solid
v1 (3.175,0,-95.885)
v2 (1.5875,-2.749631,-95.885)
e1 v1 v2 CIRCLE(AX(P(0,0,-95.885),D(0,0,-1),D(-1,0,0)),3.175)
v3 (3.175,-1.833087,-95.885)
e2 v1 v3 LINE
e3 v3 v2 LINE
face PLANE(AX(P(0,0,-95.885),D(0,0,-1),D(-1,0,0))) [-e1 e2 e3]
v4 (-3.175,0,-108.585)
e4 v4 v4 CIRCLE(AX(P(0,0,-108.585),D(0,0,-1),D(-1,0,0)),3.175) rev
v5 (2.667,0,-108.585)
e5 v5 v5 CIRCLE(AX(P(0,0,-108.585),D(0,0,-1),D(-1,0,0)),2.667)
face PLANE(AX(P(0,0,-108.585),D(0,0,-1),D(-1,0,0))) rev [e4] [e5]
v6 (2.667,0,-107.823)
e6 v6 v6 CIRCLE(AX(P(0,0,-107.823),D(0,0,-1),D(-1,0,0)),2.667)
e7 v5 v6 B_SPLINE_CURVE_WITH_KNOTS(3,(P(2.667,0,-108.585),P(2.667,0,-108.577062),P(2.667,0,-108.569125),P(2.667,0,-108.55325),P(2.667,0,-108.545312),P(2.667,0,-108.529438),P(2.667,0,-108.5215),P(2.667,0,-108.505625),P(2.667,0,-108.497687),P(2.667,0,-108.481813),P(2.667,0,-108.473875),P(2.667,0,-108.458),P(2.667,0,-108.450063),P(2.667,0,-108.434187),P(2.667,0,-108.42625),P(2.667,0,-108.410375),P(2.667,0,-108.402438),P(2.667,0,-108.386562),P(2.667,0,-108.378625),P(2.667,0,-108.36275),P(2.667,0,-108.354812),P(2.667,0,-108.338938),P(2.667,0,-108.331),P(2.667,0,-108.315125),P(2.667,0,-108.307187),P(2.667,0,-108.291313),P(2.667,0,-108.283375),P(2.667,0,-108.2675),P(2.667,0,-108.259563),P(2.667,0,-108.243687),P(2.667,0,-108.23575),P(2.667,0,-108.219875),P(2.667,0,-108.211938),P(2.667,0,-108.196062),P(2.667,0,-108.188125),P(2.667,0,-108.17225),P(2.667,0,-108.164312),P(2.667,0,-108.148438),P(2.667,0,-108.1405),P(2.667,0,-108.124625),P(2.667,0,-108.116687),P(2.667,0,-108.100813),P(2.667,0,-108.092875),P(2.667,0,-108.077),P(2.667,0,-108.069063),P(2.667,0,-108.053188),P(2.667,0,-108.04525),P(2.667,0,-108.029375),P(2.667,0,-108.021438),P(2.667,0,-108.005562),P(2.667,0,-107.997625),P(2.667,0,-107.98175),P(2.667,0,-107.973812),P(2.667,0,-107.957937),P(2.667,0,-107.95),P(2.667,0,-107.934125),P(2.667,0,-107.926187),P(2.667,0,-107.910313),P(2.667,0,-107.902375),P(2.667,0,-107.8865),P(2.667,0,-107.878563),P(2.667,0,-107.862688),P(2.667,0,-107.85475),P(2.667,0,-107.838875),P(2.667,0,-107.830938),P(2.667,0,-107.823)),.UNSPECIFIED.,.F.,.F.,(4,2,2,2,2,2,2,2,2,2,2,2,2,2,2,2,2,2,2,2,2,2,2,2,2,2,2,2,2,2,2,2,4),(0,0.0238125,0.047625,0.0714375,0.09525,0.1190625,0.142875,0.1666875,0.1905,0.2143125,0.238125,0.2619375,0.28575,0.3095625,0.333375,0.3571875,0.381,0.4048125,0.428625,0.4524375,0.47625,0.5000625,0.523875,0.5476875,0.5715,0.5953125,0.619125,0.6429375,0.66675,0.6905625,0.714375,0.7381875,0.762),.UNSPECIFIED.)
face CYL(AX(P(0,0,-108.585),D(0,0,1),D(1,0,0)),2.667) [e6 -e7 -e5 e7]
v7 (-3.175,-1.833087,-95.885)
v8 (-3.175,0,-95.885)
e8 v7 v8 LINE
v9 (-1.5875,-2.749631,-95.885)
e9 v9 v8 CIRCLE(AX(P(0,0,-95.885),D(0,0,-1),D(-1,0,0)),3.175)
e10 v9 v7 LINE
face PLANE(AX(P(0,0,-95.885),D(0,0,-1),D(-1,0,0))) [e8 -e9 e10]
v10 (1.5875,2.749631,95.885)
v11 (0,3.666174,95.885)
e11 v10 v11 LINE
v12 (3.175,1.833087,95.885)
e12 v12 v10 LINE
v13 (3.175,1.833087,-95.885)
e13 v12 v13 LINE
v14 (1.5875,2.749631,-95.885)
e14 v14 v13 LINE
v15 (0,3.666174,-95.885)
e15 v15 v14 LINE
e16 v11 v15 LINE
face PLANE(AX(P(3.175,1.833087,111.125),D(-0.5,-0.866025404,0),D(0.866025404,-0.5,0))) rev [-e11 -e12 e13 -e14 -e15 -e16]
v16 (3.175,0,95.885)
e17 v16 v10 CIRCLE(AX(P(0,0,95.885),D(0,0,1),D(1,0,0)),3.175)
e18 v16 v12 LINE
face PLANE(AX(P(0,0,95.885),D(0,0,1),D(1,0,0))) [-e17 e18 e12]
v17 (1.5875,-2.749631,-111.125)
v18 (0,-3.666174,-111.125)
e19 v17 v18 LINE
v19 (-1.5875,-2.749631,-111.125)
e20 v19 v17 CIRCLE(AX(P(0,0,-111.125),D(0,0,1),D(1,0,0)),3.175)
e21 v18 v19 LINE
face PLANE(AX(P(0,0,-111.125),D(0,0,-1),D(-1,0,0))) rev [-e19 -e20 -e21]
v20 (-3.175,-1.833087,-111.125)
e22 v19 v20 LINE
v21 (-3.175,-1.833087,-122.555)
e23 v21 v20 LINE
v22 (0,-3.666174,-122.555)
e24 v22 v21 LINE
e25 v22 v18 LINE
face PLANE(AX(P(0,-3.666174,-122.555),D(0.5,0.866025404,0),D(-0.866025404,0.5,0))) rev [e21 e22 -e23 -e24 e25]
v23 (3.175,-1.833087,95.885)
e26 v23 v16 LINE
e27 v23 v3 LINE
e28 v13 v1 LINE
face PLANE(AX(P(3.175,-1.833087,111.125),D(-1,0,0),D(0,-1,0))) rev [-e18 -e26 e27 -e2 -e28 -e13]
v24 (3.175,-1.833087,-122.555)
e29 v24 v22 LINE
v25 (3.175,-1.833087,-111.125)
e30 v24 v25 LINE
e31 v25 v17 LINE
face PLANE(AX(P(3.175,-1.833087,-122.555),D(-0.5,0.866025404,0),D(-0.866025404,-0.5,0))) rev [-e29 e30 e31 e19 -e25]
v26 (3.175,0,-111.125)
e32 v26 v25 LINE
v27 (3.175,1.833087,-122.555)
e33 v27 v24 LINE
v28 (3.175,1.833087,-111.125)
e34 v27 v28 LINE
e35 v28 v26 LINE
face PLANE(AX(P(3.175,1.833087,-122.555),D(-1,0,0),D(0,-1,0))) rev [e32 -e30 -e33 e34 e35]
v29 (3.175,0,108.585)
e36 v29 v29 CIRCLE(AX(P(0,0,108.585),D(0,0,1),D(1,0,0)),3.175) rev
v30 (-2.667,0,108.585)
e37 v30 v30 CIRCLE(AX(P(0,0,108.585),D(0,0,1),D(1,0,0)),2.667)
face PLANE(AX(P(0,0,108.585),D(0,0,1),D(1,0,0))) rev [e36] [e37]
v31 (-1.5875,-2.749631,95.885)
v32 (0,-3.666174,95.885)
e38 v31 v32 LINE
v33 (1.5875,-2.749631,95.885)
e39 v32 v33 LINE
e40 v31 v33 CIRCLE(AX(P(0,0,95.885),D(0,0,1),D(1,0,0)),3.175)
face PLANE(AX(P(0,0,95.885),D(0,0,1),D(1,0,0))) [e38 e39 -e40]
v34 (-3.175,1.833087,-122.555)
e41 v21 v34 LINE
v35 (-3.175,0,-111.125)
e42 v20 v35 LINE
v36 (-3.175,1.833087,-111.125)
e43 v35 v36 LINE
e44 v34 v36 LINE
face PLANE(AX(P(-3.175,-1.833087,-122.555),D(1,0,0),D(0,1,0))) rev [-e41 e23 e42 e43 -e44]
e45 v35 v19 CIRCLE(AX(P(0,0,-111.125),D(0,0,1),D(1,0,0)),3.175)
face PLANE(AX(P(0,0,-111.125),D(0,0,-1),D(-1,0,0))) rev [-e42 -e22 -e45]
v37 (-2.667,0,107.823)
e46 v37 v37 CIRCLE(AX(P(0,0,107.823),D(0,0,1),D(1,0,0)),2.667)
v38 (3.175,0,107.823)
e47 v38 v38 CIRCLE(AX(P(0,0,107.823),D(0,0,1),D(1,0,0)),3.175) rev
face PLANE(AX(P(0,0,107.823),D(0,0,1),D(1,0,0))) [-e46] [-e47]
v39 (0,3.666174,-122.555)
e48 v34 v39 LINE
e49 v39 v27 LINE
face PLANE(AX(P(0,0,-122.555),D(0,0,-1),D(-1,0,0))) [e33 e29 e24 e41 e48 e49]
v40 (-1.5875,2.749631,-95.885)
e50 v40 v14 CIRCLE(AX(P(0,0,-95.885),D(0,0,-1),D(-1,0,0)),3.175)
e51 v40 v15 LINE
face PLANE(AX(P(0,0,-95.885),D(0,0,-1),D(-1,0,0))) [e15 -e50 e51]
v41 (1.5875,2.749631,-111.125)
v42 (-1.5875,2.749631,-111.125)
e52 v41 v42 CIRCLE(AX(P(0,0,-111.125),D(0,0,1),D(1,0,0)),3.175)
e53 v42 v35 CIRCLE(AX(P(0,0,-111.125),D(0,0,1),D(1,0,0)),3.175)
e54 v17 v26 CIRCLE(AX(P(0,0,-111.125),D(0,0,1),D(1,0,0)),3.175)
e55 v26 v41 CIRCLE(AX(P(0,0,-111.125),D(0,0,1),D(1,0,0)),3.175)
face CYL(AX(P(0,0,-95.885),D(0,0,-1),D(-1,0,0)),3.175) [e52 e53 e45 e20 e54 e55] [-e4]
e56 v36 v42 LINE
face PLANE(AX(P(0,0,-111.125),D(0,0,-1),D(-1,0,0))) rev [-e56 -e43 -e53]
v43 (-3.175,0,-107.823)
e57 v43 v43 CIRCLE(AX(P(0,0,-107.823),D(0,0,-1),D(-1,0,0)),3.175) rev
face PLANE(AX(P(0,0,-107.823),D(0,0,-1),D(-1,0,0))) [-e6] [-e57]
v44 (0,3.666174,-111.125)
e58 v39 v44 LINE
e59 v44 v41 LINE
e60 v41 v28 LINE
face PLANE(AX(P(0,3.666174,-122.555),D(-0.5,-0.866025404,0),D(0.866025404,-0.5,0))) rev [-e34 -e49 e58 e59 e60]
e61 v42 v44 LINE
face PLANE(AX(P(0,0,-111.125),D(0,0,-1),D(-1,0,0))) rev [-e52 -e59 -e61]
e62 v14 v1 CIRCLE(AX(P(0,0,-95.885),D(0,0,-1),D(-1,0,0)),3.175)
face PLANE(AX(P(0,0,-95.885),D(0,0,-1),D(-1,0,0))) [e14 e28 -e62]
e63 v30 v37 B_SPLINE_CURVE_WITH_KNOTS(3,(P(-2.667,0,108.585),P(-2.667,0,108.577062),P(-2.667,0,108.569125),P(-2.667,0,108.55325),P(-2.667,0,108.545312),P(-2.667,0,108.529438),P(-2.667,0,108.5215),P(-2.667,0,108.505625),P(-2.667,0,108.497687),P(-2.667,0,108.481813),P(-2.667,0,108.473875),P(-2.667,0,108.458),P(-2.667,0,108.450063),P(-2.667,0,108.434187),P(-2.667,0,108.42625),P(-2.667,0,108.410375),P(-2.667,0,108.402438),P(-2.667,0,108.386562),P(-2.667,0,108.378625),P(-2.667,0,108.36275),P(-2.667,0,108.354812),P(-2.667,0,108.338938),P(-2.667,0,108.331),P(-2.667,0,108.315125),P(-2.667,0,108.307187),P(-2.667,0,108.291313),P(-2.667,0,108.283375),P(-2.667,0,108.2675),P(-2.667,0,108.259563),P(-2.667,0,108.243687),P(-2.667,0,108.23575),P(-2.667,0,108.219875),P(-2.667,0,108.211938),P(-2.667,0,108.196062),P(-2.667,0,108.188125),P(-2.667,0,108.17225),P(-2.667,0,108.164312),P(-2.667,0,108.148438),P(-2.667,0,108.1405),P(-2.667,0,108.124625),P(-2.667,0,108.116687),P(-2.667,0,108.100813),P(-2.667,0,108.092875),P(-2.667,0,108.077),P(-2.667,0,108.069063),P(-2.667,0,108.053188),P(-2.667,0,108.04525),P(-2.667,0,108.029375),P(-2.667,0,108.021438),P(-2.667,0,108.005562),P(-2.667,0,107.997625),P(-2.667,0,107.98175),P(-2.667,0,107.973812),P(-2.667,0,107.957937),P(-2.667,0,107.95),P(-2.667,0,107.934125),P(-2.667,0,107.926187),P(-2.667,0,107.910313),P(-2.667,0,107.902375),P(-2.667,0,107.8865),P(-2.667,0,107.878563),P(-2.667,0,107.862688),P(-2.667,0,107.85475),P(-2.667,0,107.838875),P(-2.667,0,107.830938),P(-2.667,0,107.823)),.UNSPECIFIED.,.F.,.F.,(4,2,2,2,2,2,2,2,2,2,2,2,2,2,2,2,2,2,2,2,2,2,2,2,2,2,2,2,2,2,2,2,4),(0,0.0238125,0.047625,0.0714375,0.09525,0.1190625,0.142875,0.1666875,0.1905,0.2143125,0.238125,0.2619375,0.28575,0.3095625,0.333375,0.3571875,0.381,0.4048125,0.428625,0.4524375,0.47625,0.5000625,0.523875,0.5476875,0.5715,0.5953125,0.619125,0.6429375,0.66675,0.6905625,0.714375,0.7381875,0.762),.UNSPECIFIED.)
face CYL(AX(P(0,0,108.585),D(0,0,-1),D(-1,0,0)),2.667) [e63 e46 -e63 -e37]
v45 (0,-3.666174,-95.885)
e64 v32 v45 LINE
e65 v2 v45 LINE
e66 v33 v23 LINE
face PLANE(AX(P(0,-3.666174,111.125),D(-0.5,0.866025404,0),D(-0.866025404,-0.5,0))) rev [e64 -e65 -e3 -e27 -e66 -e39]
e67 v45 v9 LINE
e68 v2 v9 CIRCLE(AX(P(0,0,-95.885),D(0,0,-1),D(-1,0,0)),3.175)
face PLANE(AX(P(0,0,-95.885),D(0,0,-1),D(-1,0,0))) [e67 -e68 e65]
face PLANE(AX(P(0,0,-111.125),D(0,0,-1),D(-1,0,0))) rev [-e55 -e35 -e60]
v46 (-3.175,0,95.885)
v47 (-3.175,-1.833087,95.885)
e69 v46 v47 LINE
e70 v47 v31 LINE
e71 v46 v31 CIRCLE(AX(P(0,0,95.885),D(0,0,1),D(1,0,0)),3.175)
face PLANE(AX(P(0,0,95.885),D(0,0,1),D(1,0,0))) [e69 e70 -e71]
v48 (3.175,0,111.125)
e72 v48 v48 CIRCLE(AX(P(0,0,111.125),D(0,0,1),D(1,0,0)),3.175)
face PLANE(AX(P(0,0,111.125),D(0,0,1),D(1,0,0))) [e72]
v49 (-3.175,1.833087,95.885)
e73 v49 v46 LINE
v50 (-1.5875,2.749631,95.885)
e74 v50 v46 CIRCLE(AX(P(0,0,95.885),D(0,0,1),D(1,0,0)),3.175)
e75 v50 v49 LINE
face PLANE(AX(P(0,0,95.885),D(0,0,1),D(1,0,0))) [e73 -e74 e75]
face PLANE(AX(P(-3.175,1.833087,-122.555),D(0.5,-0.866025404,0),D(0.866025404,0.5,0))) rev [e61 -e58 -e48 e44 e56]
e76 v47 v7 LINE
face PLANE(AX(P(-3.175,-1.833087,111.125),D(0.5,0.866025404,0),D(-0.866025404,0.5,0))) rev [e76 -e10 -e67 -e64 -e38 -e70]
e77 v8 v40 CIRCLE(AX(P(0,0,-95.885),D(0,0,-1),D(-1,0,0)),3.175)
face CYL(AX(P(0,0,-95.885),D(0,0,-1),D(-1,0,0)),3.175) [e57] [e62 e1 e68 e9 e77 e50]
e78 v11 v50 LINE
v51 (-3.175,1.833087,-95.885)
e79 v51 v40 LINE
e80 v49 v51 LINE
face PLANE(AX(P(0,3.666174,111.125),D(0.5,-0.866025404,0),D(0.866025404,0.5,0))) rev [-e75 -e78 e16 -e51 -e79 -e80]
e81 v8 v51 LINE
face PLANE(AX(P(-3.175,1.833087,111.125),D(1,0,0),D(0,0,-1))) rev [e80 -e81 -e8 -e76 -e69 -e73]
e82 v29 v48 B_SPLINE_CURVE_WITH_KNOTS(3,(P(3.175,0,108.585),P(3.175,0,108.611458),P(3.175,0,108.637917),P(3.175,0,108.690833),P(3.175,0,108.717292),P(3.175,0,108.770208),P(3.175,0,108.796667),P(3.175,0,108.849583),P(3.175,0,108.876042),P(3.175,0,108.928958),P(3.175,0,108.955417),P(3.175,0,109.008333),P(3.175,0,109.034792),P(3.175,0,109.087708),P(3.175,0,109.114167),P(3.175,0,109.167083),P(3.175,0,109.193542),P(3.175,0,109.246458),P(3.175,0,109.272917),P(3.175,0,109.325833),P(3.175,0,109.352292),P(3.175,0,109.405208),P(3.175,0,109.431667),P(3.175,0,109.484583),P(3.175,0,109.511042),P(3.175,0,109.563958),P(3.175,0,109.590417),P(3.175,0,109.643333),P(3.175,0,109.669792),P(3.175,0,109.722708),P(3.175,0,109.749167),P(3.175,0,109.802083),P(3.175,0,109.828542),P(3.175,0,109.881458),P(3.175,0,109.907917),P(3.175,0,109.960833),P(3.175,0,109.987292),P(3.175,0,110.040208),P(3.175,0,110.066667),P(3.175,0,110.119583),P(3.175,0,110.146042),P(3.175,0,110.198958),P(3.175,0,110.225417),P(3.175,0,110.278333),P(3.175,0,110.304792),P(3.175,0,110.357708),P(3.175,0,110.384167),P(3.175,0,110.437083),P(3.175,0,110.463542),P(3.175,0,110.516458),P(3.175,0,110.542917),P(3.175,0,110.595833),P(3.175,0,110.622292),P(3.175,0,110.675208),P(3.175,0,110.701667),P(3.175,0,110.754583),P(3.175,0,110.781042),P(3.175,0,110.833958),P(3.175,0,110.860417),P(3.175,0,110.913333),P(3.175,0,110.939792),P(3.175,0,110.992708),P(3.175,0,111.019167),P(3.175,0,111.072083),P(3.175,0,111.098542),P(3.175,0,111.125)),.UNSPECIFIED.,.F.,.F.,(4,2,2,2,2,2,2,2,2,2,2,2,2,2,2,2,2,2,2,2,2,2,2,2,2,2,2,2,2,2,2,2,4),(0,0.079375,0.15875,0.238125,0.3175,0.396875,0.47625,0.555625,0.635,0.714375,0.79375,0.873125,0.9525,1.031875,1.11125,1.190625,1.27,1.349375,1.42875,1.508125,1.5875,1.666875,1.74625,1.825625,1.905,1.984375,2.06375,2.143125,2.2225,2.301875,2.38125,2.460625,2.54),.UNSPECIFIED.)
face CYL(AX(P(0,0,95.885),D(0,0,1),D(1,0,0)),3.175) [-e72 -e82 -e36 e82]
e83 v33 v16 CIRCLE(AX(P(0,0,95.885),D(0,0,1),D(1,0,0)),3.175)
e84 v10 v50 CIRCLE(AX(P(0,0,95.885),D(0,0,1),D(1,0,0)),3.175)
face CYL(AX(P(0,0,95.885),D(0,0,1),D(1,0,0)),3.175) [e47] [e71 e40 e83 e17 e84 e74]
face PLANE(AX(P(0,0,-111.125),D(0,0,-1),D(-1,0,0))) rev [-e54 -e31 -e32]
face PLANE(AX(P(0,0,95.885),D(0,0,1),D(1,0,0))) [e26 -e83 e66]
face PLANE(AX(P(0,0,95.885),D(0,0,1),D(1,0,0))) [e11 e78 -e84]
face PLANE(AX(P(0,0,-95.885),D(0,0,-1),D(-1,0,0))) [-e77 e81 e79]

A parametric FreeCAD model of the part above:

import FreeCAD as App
import Part
import Sketcher
Q = App.Units.Quantity


def add_polygon(sketch, points):
    """Adds a closed chain of lines whose ends are joined by coincident constraints."""
    first, n = sketch.GeometryCount, len(points)
    for a, b in zip(points, points[1:] + points[:1]):
        sketch.addGeometry(Part.LineSegment(App.Vector(*a, 0), App.Vector(*b, 0)), False)
    for i in range(n):
        sketch.addConstraint(Sketcher.Constraint("Coincident", first + i, 2, first + (i + 1) % n, 1))

doc = App.newDocument("Part")
body = doc.addObject("PartDesign::Body", "Body")

# Sketch on XY plane
sketch1 = body.newObject("Sketcher::SketchObject", "Sketch")
sketch1.AttachmentSupport = (doc.getObject("XY_Plane"), [""])
sketch1.MapMode = "FlatFace"
add_polygon(sketch1, [(0, 3.666174), (-3.175, 1.833087), (-3.175, -1.833087), (0, -3.666174), (3.175, -1.833087), (3.175, 1.833087)])  # lines 0-5
sketch1.addConstraint([
    Sketcher.Constraint("Vertical", 1),
    Sketcher.Constraint("Vertical", 4),
    Sketcher.Constraint("Symmetric", 0, 2, 3, 2, -1, 1),
    Sketcher.Constraint("Symmetric", 2, 2, 5, 2, -1, 1),
    Sketcher.Constraint("PointOnObject", 2, 2, -2),
    Sketcher.Constraint("Parallel", 2, 5),
    Sketcher.Constraint("Horizontal", 1, 2, 3, 2),
    Sketcher.Constraint("Angle", 0, Q("-150 deg")),
    Sketcher.Constraint("DistanceX", 1, 2, 3, 2, Q("0.25 in")),
    Sketcher.Constraint("DistanceY", 1, 2, 1, 1, 3.666174),
])
pad1 = body.newObject("PartDesign::Pad", "Pad")
pad1.Profile = sketch1
pad1.Type = "TwoLengths"
pad1.Length = Q("4.375 in")
pad1.Length2 = Q("4.375 in")

# Sketch on XY plane
sketch2 = body.newObject("Sketcher::SketchObject", "Sketch001")
sketch2.AttachmentSupport = (doc.getObject("XY_Plane"), [""])
sketch2.MapMode = "FlatFace"
sketch2.AttachmentOffset = App.Placement(App.Vector(0, 0, 4.375 * 25.4), App.Rotation())
add_polygon(sketch2, [(-26.421, 26.912), (-26.421, -26.912), (26.421, -26.912), (26.421, 26.912)])  # lines 0-3
sketch2.addGeometry(Part.Circle(App.Vector(0, 0, 0), App.Vector(0, 0, 1), 3.175), False)  # 4
sketch2.addConstraint([
    Sketcher.Constraint("Vertical", 0),
    Sketcher.Constraint("Horizontal", 1),
    Sketcher.Constraint("Vertical", 2),
    Sketcher.Constraint("Horizontal", 3),
    Sketcher.Constraint("Coincident", 4, 3, -1, 1),
    Sketcher.Constraint("Symmetric", 0, 2, 2, 2, -1, 1),
    Sketcher.Constraint("Diameter", 4, Q("0.25 in")),
    Sketcher.Constraint("DistanceX", 1, 1, 1, 2, 52.842),
    Sketcher.Constraint("DistanceY", 0, 2, 0, 1, 53.824),
])
pocket1 = body.newObject("PartDesign::Pocket", "Pocket")
pocket1.Profile = sketch2
pocket1.Length = Q("0.6 in")

# Sketch on XY plane
sketch3 = body.newObject("Sketcher::SketchObject", "Sketch002")
sketch3.AttachmentSupport = (doc.getObject("XY_Plane"), [""])
sketch3.MapMode = "FlatFace"
sketch3.AttachmentOffset = App.Placement(App.Vector(0, 0, -4.375 * 25.4), App.Rotation())
add_polygon(sketch3, [(26.421, 26.912), (26.421, -26.912), (-26.421, -26.912), (-26.421, 26.912)])  # lines 0-3
sketch3.addGeometry(Part.Circle(App.Vector(0, 0, 0), App.Vector(0, 0, 1), 3.175), False)  # 4
sketch3.addConstraint([
    Sketcher.Constraint("Vertical", 0),
    Sketcher.Constraint("Horizontal", 1),
    Sketcher.Constraint("Vertical", 2),
    Sketcher.Constraint("Horizontal", 3),
    Sketcher.Constraint("Coincident", 4, 3, -1, 1),
    Sketcher.Constraint("Symmetric", 0, 2, 2, 2, -1, 1),
    Sketcher.Constraint("Diameter", 4, Q("0.25 in")),
    Sketcher.Constraint("DistanceX", 1, 2, 1, 1, 52.842),
    Sketcher.Constraint("DistanceY", 0, 2, 0, 1, 53.824),
])
pocket2 = body.newObject("PartDesign::Pocket", "Pocket001")
pocket2.Profile = sketch3
pocket2.Length = Q("0.6 in")
pocket2.Reversed = True

# Sketch on XY plane
sketch4 = body.newObject("Sketcher::SketchObject", "Sketch003")
sketch4.AttachmentSupport = (doc.getObject("XY_Plane"), [""])
sketch4.MapMode = "FlatFace"
sketch4.AttachmentOffset = App.Placement(App.Vector(0, 0, -4.245 * 25.4), App.Rotation())
add_polygon(sketch4, [(26.421, 26.912), (26.421, -26.912), (-26.421, -26.912), (-26.421, 26.912)])  # lines 0-3
sketch4.addGeometry(Part.Circle(App.Vector(0, 0, 0), App.Vector(0, 0, 1), 2.667), False)  # 4
sketch4.addConstraint([
    Sketcher.Constraint("Vertical", 0),
    Sketcher.Constraint("Horizontal", 1),
    Sketcher.Constraint("Vertical", 2),
    Sketcher.Constraint("Horizontal", 3),
    Sketcher.Constraint("Coincident", 4, 3, -1, 1),
    Sketcher.Constraint("Symmetric", 0, 2, 2, 2, -1, 1),
    Sketcher.Constraint("Diameter", 4, Q("0.21 in")),
    Sketcher.Constraint("DistanceX", 1, 2, 1, 1, 52.842),
    Sketcher.Constraint("DistanceY", 0, 2, 0, 1, 53.824),
])
pocket3 = body.newObject("PartDesign::Pocket", "Pocket002")
pocket3.Profile = sketch4
pocket3.Length = Q("0.03 in")

# Sketch on XY plane
sketch5 = body.newObject("Sketcher::SketchObject", "Sketch004")
sketch5.AttachmentSupport = (doc.getObject("XY_Plane"), [""])
sketch5.MapMode = "FlatFace"
sketch5.AttachmentOffset = App.Placement(App.Vector(0, 0, 4.245 * 25.4), App.Rotation())
add_polygon(sketch5, [(-26.421, 26.912), (-26.421, -26.912), (26.421, -26.912), (26.421, 26.912)])  # lines 0-3
sketch5.addGeometry(Part.Circle(App.Vector(0, 0, 0), App.Vector(0, 0, 1), 2.667), False)  # 4
sketch5.addConstraint([
    Sketcher.Constraint("Vertical", 0),
    Sketcher.Constraint("Horizontal", 1),
    Sketcher.Constraint("Vertical", 2),
    Sketcher.Constraint("Horizontal", 3),
    Sketcher.Constraint("Coincident", 4, 3, -1, 1),
    Sketcher.Constraint("Symmetric", 0, 2, 2, 2, -1, 1),
    Sketcher.Constraint("Diameter", 4, Q("0.21 in")),
    Sketcher.Constraint("DistanceX", 1, 1, 1, 2, 52.842),
    Sketcher.Constraint("DistanceY", 0, 2, 0, 1, 53.824),
])
pocket4 = body.newObject("PartDesign::Pocket", "Pocket003")
pocket4.Profile = sketch5
pocket4.Length = Q("0.03 in")
pocket4.Reversed = True

# Sketch on XY plane
sketch6 = body.newObject("Sketcher::SketchObject", "Sketch005")
sketch6.AttachmentSupport = (doc.getObject("XY_Plane"), [""])
sketch6.MapMode = "FlatFace"
sketch6.AttachmentOffset = App.Placement(App.Vector(0, 0, -4.375 * 25.4), App.Rotation())
add_polygon(sketch6, [(0, 3.666174), (3.175, 1.833087), (3.175, -1.833087), (0, -3.666174), (-3.175, -1.833087), (-3.175, 1.833087)])  # lines 0-5
sketch6.addConstraint([
    Sketcher.Constraint("Vertical", 1),
    Sketcher.Constraint("Vertical", 4),
    Sketcher.Constraint("Symmetric", 0, 2, 3, 2, -1, 1),
    Sketcher.Constraint("Symmetric", 2, 2, 5, 2, -1, 1),
    Sketcher.Constraint("PointOnObject", 2, 2, -2),
    Sketcher.Constraint("Parallel", 2, 5),
    Sketcher.Constraint("Horizontal", 1, 2, 3, 2),
    Sketcher.Constraint("Angle", 0, Q("-30 deg")),
    Sketcher.Constraint("DistanceX", 3, 2, 1, 2, Q("0.25 in")),
    Sketcher.Constraint("DistanceY", 1, 2, 1, 1, 3.666174),
])
pad2 = body.newObject("PartDesign::Pad", "Pad001")
pad2.Profile = sketch6
pad2.Length = Q("0.45 in")
pad2.Reversed = True

doc.recompute()
